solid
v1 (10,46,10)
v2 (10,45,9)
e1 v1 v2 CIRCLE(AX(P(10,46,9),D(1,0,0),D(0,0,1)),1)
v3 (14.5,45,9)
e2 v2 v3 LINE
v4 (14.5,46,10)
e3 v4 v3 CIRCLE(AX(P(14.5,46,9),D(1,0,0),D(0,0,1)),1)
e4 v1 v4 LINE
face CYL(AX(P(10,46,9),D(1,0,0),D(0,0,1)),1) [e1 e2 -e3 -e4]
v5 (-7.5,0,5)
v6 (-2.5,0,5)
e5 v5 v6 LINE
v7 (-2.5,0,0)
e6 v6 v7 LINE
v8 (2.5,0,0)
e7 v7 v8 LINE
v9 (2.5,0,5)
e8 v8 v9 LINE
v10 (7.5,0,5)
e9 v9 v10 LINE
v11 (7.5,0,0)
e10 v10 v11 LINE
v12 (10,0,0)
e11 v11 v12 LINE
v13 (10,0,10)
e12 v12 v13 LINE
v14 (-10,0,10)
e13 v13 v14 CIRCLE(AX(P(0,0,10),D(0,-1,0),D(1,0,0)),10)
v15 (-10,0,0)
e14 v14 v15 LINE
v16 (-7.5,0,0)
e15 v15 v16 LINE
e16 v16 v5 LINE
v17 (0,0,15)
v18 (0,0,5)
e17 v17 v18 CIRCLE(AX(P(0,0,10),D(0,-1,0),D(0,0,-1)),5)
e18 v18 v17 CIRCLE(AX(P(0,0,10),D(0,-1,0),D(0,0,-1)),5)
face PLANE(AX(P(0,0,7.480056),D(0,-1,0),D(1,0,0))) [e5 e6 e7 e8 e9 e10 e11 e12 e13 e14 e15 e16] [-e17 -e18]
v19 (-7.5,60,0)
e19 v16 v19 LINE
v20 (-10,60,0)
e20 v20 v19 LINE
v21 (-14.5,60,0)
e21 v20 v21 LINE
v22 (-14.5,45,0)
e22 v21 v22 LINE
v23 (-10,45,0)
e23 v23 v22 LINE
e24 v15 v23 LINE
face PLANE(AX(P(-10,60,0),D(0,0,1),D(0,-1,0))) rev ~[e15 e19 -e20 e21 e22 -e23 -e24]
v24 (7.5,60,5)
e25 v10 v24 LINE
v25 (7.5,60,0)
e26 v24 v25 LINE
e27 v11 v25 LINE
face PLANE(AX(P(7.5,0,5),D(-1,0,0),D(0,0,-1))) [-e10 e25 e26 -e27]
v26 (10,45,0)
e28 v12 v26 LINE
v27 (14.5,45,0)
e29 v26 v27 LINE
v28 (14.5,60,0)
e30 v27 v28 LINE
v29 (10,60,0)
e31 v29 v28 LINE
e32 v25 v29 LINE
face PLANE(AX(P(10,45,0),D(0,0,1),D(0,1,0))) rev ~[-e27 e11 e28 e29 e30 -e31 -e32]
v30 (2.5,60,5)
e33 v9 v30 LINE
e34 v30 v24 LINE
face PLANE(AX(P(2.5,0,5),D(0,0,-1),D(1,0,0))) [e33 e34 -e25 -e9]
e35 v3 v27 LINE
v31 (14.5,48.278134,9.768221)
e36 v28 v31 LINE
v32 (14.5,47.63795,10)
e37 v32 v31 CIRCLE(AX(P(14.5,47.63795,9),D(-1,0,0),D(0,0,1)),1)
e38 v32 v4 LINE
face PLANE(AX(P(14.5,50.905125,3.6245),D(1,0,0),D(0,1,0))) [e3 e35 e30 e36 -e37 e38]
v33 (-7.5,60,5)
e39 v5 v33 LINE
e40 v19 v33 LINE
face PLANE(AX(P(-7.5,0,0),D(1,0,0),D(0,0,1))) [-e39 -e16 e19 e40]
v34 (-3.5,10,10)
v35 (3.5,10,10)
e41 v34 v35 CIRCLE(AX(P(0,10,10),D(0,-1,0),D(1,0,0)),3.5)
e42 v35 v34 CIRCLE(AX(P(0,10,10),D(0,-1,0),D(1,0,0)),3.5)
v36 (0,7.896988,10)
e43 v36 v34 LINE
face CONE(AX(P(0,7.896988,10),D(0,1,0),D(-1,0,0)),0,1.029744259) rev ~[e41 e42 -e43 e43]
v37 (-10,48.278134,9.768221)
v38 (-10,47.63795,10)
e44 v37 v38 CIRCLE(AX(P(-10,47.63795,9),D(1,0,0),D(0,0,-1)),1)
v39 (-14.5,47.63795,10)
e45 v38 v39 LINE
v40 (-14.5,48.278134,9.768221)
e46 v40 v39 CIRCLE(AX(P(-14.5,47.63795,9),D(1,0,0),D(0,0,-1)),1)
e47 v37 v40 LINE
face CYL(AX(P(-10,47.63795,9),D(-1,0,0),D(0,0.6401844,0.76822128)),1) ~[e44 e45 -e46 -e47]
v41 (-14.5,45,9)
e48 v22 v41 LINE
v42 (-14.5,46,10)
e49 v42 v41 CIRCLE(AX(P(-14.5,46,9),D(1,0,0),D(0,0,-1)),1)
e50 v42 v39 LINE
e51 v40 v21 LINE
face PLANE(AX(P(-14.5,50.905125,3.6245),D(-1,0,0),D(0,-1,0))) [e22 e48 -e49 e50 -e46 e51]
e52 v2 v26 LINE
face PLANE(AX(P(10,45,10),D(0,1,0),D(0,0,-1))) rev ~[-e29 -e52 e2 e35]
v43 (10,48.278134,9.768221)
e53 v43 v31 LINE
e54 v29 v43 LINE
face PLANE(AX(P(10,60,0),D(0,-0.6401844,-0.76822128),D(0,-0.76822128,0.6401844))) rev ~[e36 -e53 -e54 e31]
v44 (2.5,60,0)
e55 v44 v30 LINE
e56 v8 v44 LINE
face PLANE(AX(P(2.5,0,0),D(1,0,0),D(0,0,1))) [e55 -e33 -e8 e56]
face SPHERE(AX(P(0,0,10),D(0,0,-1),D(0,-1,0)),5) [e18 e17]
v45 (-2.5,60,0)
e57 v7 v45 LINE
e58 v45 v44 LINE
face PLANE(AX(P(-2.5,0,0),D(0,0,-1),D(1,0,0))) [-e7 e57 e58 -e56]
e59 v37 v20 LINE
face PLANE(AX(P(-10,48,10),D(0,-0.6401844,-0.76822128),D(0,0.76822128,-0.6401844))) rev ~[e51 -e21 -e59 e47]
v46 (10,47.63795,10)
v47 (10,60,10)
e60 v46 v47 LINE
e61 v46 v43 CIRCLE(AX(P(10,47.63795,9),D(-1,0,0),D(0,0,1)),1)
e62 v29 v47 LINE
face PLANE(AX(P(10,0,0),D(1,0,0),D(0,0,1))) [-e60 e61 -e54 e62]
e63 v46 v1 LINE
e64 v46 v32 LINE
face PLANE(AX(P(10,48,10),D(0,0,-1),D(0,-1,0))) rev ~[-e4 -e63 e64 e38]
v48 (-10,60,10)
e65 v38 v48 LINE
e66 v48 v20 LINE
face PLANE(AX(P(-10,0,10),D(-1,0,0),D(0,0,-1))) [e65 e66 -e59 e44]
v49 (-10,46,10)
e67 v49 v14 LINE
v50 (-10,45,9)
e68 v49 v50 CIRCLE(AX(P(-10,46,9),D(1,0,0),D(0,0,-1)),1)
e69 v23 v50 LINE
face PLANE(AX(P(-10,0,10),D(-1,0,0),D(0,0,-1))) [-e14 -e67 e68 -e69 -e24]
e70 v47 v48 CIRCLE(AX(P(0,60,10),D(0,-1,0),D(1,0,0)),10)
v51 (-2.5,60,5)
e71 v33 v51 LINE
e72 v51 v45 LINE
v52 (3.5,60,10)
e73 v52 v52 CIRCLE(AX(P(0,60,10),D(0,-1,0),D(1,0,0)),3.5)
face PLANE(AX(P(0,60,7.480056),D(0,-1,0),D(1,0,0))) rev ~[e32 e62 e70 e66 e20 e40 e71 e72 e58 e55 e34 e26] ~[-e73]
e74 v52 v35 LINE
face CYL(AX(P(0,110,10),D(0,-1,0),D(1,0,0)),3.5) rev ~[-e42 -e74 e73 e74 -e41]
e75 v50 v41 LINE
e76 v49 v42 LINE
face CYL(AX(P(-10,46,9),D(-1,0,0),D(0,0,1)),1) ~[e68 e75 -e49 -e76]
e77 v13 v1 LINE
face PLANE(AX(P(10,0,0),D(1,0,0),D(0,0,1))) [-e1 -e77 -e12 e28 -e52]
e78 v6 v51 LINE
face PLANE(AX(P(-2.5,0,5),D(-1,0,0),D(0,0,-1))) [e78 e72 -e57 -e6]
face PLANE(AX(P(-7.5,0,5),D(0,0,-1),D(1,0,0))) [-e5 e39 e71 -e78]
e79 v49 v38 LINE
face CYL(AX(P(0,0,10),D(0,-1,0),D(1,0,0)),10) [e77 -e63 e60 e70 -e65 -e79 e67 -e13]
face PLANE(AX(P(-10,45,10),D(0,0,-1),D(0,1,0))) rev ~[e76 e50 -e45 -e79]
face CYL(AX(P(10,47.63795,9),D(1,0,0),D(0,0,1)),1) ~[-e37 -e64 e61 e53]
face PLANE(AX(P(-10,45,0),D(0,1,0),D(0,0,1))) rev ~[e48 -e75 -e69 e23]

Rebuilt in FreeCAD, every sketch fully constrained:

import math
import FreeCAD as App
import Part
import Sketcher
from FreeCAD import Vector
Q = App.Units.Quantity


def edges_at(feature, points):
    """Names of the edges that pass closest to the given points."""
    edges = feature.Shape.Edges
    near = lambda p: min(range(len(edges)), key=lambda i: edges[i].distToShape(Part.Vertex(*p))[0])
    return sorted({f"Edge{near(p) + 1}" for p in points})


def add_polygon(sketch, points):
    """Adds a closed chain of lines whose ends are joined by coincident constraints."""
    first, n = sketch.GeometryCount, len(points)
    for a, b in zip(points, points[1:] + points[:1]):
        sketch.addGeometry(Part.LineSegment(App.Vector(*a, 0), App.Vector(*b, 0)), False)
    for i in range(n):
        sketch.addConstraint(Sketcher.Constraint("Coincident", first + i, 2, first + (i + 1) % n, 1))

doc = App.newDocument("Part")
body = doc.addObject("PartDesign::Body", "Body")

# Sketch on XZ plane
sketch1 = doc.addObject("Sketcher::SketchObject", "Sketch")
body.addObject(sketch1)
sketch1.AttachmentSupport = (doc.XZ_Plane, [""])
sketch1.MapMode = "FlatFace"
sketch1.addGeometry([
    Part.LineSegment(Vector(-10, 10, 0), Vector(-10, 0, 0)),  # 0
    Part.LineSegment(Vector(-10, 0, 0), Vector(-7.5, 0, 0)),  # 1
    Part.LineSegment(Vector(-7.5, 0, 0), Vector(-7.5, 5, 0)),  # 2
    Part.LineSegment(Vector(-7.5, 5, 0), Vector(-2.5, 5, 0)),  # 3
    Part.LineSegment(Vector(-2.5, 5, 0), Vector(-2.5, 0, 0)),  # 4
    Part.LineSegment(Vector(-2.5, 0, 0), Vector(2.5, 0, 0)),  # 5
    Part.LineSegment(Vector(2.5, 0, 0), Vector(2.5, 5, 0)),  # 6
    Part.LineSegment(Vector(2.5, 5, 0), Vector(7.5, 5, 0)),  # 7
    Part.LineSegment(Vector(7.5, 5, 0), Vector(7.5, 0, 0)),  # 8
    Part.LineSegment(Vector(7.5, 0, 0), Vector(10, 0, 0)),  # 9
    Part.LineSegment(Vector(10, 0, 0), Vector(10, 10, 0)),  # 10
    Part.ArcOfCircle(Part.Circle(Vector(0, 10, 0), Vector(0, 0, 1), 10), math.radians(0), math.radians(180)),  # 11
], False)
sketch1.addConstraint([
    Sketcher.Constraint("Coincident", 0, 2, 1, 1),
    Sketcher.Constraint("Coincident", 1, 2, 2, 1),
    Sketcher.Constraint("Coincident", 2, 2, 3, 1),
    Sketcher.Constraint("Coincident", 3, 2, 4, 1),
    Sketcher.Constraint("Coincident", 4, 2, 5, 1),
    Sketcher.Constraint("Coincident", 5, 2, 6, 1),
    Sketcher.Constraint("Coincident", 6, 2, 7, 1),
    Sketcher.Constraint("Coincident", 7, 2, 8, 1),
    Sketcher.Constraint("Coincident", 8, 2, 9, 1),
    Sketcher.Constraint("Coincident", 9, 2, 10, 1),
    Sketcher.Constraint("Tangent", 10, 2, 11, 1),
    Sketcher.Constraint("Tangent", 11, 2, 0, 1),
    Sketcher.Constraint("Vertical", 0),
    Sketcher.Constraint("Horizontal", 1),
    Sketcher.Constraint("Vertical", 2),
    Sketcher.Constraint("Horizontal", 3),
    Sketcher.Constraint("Vertical", 4),
    Sketcher.Constraint("Horizontal", 5),
    Sketcher.Constraint("Vertical", 6),
    Sketcher.Constraint("Horizontal", 7),
    Sketcher.Constraint("Vertical", 8),
    Sketcher.Constraint("Horizontal", 9),
    Sketcher.Constraint("Vertical", 10),
    Sketcher.Constraint("Symmetric", 4, 2, 5, 2, -1, 1),
    Sketcher.Constraint("Symmetric", 1, 2, 8, 2, -1, 1),
    Sketcher.Constraint("Symmetric", 0, 2, 9, 2, -2),
    Sketcher.Constraint("Horizontal", 3, 2, 6, 2),
    Sketcher.Constraint("Equal", 3, 5),
    Sketcher.Constraint("Equal", 7, 2),
    Sketcher.Constraint("Radius", 11, Q("10 mm")),
    Sketcher.Constraint("DistanceX", 3, 1, 3, 2, Q("5 mm")),
    Sketcher.Constraint("DistanceY", 0, 2, 0, 1, Q("10 mm")),
])
pad1 = doc.addObject("PartDesign::Pad", "Pad")
body.addObject(pad1)
pad1.Profile = sketch1
pad1.Length = 60
pad1.Reversed = True

# Sketch on YZ plane
sketch2 = doc.addObject("Sketcher::SketchObject", "Sketch001")
body.addObject(sketch2)
sketch2.AttachmentSupport = (doc.YZ_Plane, [""])
sketch2.MapMode = "FlatFace"
sketch2.addGeometry([
    Part.LineSegment(Vector(0, 5, 0), Vector(0, 15, 0)),
    Part.ArcOfCircle(Part.Circle(Vector(0, 10, 0), Vector(0, 0, 1), 5), math.radians(90), math.radians(270)),
], False)
sketch2.addConstraint([
    Sketcher.Constraint("Coincident", 0, 1, 1, 2),
    Sketcher.Constraint("Coincident", 1, 1, 0, 2),
    Sketcher.Constraint("Vertical", 0),
    Sketcher.Constraint("PointOnObject", 1, 3, -2),
    Sketcher.Constraint("PointOnObject", 0, 1, -2),
    Sketcher.Constraint("Radius", 1, Q("5 mm")),
    Sketcher.Constraint("DistanceY", -1, 1, 1, 3, Q("10 mm")),
])
revolution = doc.addObject("PartDesign::Revolution", "Revolution")
body.addObject(revolution)
revolution.Profile = sketch2
revolution.ReferenceAxis = (sketch2, ["V_Axis"])
revolution.Angle = 360

# Sketch on XZ plane
sketch3 = doc.addObject("Sketcher::SketchObject", "Sketch002")
body.addObject(sketch3)
sketch3.AttachmentSupport = (doc.XZ_Plane, [""])
sketch3.MapMode = "FlatFace"
sketch3.AttachmentOffset = App.Placement(Vector(0, 0, -60), App.Rotation())
sketch3.addGeometry(Part.Circle(Vector(0, 10, 0), Vector(0, 0, 1), 3.5), False)
sketch3.addConstraint([
    Sketcher.Constraint("PointOnObject", 0, 3, -2),
    Sketcher.Constraint("Diameter", 0, Q("7 mm")),
    Sketcher.Constraint("DistanceY", -1, 1, 0, 3, Q("10 mm")),
])
doc.recompute()
hole = doc.addObject("PartDesign::Hole", "Hole")
body.addObject(hole)
hole.Profile = sketch3
hole.ThreadType = "None"
hole.Diameter = 7
hole.DepthType = "Dimension"
hole.Depth = 50
hole.DrillPoint = "Angled"
hole.DrillPointAngle = 118
hole.Reversed = True

# Sketch on YZ plane
sketch4 = doc.addObject("Sketcher::SketchObject", "Sketch003")
body.addObject(sketch4)
sketch4.AttachmentSupport = (doc.YZ_Plane, [""])
sketch4.MapMode = "FlatFace"
sketch4.AttachmentOffset = App.Placement(Vector(0, 0, 10), App.Rotation())
add_polygon(sketch4, [(45, 0), (60, 0), (48, 10), (45, 10)])  # lines 0-3
sketch4.addConstraint([
    Sketcher.Constraint("Horizontal", 0),
    Sketcher.Constraint("Horizontal", 2),
    Sketcher.Constraint("Vertical", 3),
    Sketcher.Constraint("PointOnObject", 0, 2, -1),
    Sketcher.Constraint("DistanceX", 0, 1, 0, 2, Q("15 mm")),
    Sketcher.Constraint("DistanceX", 2, 2, 2, 1, Q("3 mm")),
    Sketcher.Constraint("DistanceY", 3, 2, 3, 1, Q("10 mm")),
    Sketcher.Constraint("DistanceX", -1, 1, 0, 2, Q("60 mm")),
])
pad2 = doc.addObject("PartDesign::Pad", "Pad001")
body.addObject(pad2)
pad2.Profile = sketch4
pad2.Length = 4.5

# Sketch on YZ plane
sketch5 = doc.addObject("Sketcher::SketchObject", "Sketch004")
body.addObject(sketch5)
sketch5.AttachmentSupport = (doc.YZ_Plane, [""])
sketch5.MapMode = "FlatFace"
sketch5.AttachmentOffset = App.Placement(Vector(0, 0, -10), App.Rotation())
add_polygon(sketch5, [(48, 10), (60, 0), (45, 0), (45, 10)])  # lines 0-3
sketch5.addConstraint([
    Sketcher.Constraint("Horizontal", 1),
    Sketcher.Constraint("Vertical", 2),
    Sketcher.Constraint("Horizontal", 3),
    Sketcher.Constraint("PointOnObject", 0, 2, -1),
    Sketcher.Constraint("DistanceX", 1, 2, 1, 1, Q("15 mm")),
    Sketcher.Constraint("DistanceX", 3, 1, 3, 2, Q("3 mm")),
    Sketcher.Constraint("DistanceY", 2, 1, 2, 2, Q("10 mm")),
    Sketcher.Constraint("DistanceX", -1, 1, 0, 2, Q("60 mm")),
])
pad3 = doc.addObject("PartDesign::Pad", "Pad002")
body.addObject(pad3)
pad3.Profile = sketch5
pad3.Length = 4.5
pad3.Reversed = True
doc.recompute()

fillet = doc.addObject("PartDesign::Fillet", "Fillet")
body.addObject(fillet)
fillet.Base = (pad3, edges_at(pad3, [
    (12.25, 45, 10),
    (12.25, 48, 10),
    (-12.25, 45, 10),
    (-12.25, 48, 10),
]))
fillet.Radius = 1

doc.recompute()
